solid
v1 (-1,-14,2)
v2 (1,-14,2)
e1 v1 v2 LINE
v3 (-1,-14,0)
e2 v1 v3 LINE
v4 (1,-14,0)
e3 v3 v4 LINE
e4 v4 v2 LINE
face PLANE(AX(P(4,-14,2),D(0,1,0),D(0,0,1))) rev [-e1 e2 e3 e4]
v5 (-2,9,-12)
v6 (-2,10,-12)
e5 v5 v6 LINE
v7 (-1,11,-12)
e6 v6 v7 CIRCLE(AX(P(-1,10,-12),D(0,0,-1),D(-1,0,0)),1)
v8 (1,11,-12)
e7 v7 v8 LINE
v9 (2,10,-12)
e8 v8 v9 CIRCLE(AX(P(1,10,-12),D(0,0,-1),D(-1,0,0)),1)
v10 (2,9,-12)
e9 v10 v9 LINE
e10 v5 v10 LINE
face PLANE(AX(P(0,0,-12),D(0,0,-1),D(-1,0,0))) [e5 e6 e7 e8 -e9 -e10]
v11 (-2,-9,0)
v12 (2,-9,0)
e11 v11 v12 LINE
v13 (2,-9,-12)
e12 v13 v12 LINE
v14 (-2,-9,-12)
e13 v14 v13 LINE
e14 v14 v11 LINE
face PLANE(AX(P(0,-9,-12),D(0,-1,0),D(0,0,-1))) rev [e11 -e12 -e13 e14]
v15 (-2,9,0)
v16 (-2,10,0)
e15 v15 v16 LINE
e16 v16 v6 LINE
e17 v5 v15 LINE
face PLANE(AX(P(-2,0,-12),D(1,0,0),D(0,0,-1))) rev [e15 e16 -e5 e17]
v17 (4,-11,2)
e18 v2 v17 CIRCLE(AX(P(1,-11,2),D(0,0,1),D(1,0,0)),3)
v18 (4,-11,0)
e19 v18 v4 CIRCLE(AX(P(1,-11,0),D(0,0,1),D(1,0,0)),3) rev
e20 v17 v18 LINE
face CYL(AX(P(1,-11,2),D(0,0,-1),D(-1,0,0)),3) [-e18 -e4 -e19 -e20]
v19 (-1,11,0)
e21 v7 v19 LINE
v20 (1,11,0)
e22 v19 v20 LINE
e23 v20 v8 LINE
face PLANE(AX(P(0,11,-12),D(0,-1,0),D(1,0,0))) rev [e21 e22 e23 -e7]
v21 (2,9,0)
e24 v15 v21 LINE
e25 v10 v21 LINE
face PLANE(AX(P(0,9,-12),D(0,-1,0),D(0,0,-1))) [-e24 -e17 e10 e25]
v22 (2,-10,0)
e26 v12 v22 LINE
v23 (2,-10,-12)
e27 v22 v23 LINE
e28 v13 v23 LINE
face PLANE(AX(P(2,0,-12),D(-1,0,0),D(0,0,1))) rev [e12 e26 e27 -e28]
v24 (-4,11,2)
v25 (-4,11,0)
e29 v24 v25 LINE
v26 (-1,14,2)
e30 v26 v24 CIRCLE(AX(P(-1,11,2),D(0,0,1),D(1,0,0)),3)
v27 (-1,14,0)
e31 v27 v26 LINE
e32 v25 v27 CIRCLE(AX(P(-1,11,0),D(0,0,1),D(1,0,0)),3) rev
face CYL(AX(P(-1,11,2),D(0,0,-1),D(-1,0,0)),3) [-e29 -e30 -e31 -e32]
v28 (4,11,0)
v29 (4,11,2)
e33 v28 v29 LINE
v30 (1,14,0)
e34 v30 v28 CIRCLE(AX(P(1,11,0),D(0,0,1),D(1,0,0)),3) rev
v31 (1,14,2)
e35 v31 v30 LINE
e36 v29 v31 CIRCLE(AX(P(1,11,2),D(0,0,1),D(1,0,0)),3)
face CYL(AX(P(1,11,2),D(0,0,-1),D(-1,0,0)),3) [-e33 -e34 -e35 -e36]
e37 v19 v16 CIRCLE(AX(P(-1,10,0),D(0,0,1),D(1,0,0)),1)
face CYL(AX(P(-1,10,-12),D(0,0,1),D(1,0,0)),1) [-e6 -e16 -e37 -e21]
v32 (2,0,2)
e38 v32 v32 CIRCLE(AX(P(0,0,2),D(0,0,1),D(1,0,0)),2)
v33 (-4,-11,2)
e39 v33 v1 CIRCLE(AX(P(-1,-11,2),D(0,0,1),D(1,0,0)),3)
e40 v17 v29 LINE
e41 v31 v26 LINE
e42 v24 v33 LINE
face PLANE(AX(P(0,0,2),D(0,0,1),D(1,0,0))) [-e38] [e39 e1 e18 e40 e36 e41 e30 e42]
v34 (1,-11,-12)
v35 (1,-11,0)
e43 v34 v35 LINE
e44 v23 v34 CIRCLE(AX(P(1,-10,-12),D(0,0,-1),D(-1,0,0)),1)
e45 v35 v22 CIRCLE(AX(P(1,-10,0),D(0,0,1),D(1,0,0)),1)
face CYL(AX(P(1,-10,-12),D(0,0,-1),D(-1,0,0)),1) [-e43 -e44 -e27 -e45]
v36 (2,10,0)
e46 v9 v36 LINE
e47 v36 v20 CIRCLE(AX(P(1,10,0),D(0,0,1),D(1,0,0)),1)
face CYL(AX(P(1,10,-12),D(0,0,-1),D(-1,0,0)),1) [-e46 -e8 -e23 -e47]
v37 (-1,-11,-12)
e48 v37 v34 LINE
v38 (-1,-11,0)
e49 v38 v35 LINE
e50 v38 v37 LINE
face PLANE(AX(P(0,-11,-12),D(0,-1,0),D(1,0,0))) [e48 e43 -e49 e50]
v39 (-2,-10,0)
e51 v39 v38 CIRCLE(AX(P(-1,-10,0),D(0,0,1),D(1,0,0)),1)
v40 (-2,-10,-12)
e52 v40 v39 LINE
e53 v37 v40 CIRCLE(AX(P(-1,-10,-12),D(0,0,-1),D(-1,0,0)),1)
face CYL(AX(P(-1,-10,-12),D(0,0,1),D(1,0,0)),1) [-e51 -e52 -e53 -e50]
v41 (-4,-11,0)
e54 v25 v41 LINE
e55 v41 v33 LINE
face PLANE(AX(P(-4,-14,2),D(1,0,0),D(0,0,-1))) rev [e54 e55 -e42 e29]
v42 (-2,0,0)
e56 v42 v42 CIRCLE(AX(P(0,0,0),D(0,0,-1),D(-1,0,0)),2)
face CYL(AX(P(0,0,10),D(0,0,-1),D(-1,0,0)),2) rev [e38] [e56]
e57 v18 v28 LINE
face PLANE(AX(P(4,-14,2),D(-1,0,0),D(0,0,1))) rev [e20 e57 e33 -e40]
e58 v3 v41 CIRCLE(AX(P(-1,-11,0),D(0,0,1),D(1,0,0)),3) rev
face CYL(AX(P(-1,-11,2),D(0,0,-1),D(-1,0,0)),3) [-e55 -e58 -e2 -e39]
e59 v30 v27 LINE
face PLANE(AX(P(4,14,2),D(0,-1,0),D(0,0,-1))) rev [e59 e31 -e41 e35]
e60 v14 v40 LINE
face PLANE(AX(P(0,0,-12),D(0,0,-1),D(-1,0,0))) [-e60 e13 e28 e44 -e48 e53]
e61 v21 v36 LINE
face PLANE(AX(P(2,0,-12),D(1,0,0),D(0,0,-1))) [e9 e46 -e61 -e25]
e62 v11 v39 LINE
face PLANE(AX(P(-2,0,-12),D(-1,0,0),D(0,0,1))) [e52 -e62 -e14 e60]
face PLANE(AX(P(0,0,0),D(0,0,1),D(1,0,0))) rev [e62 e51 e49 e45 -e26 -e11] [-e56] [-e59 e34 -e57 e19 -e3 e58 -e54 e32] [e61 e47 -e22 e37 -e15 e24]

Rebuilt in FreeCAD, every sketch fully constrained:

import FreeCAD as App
import Part
import Sketcher


def edges_at(feature, points):
    """Names of the edges that pass closest to the given points."""
    edges = feature.Shape.Edges
    near = lambda p: min(range(len(edges)), key=lambda i: edges[i].distToShape(Part.Vertex(*p))[0])
    return sorted({f"Edge{near(p) + 1}" for p in points})

doc = App.newDocument("Part")
body = doc.addObject("PartDesign::Body", "Body")

# Sketch on XY plane
sketch1 = body.newObject("Sketcher::SketchObject", "Sketch")
sketch1.AttachmentSupport = (doc.getObject("XY_Plane"), [""])
sketch1.MapMode = "FlatFace"
sketch1.addGeometry(Part.LineSegment(App.Vector(-4, 14, 0), App.Vector(-4, -14, 0)), False)
sketch1.addGeometry(Part.LineSegment(App.Vector(-4, -14, 0), App.Vector(4, -14, 0)), False)
sketch1.addGeometry(Part.LineSegment(App.Vector(4, -14, 0), App.Vector(4, 14, 0)), False)
sketch1.addGeometry(Part.LineSegment(App.Vector(4, 14, 0), App.Vector(-4, 14, 0)), False)
sketch1.addConstraint(Sketcher.Constraint("Coincident", 0, 2, 1, 1))
sketch1.addConstraint(Sketcher.Constraint("Coincident", 1, 2, 2, 1))
sketch1.addConstraint(Sketcher.Constraint("Coincident", 2, 2, 3, 1))
sketch1.addConstraint(Sketcher.Constraint("Coincident", 3, 2, 0, 1))
sketch1.addConstraint(Sketcher.Constraint("Vertical", 0))
sketch1.addConstraint(Sketcher.Constraint("Horizontal", 1))
sketch1.addConstraint(Sketcher.Constraint("Vertical", 2))
sketch1.addConstraint(Sketcher.Constraint("Horizontal", 3))
sketch1.addConstraint(Sketcher.Constraint("Symmetric", 0, 2, 2, 2, -1, 1))
sketch1.addConstraint(Sketcher.Constraint("DistanceX", 1, 1, 1, 2, 8.0))
sketch1.addConstraint(Sketcher.Constraint("DistanceY", 0, 2, 0, 1, 28.0))
pad1 = body.newObject("PartDesign::Pad", "Pad")
pad1.Profile = sketch1
pad1.Length = 2
doc.recompute()

fillet = body.newObject("PartDesign::Fillet", "Fillet")
fillet.Base = (pad1, edges_at(pad1, [
    (-4, 14, 1),
    (4, 14, 1),
    (4, -14, 1),
    (-4, -14, 1),
]))
fillet.Radius = 3

# Sketch on XY plane
sketch2 = body.newObject("Sketcher::SketchObject", "Sketch001")
sketch2.AttachmentSupport = (doc.getObject("XY_Plane"), [""])
sketch2.MapMode = "FlatFace"
sketch2.addGeometry(Part.LineSegment(App.Vector(2, 11, 0), App.Vector(2, 9, 0)), False)
sketch2.addGeometry(Part.LineSegment(App.Vector(2, 9, 0), App.Vector(-2, 9, 0)), False)
sketch2.addGeometry(Part.LineSegment(App.Vector(-2, 9, 0), App.Vector(-2, 11, 0)), False)
sketch2.addGeometry(Part.LineSegment(App.Vector(-2, 11, 0), App.Vector(2, 11, 0)), False)
sketch2.addGeometry(Part.LineSegment(App.Vector(2, -9, 0), App.Vector(2, -11, 0)), False)
sketch2.addGeometry(Part.LineSegment(App.Vector(2, -11, 0), App.Vector(-2, -11, 0)), False)
sketch2.addGeometry(Part.LineSegment(App.Vector(-2, -11, 0), App.Vector(-2, -9, 0)), False)
sketch2.addGeometry(Part.LineSegment(App.Vector(-2, -9, 0), App.Vector(2, -9, 0)), False)
sketch2.addConstraint(Sketcher.Constraint("Coincident", 0, 2, 1, 1))
sketch2.addConstraint(Sketcher.Constraint("Coincident", 1, 2, 2, 1))
sketch2.addConstraint(Sketcher.Constraint("Coincident", 2, 2, 3, 1))
sketch2.addConstraint(Sketcher.Constraint("Coincident", 3, 2, 0, 1))
sketch2.addConstraint(Sketcher.Constraint("Coincident", 4, 2, 5, 1))
sketch2.addConstraint(Sketcher.Constraint("Coincident", 5, 2, 6, 1))
sketch2.addConstraint(Sketcher.Constraint("Coincident", 6, 2, 7, 1))
sketch2.addConstraint(Sketcher.Constraint("Coincident", 7, 2, 4, 1))
sketch2.addConstraint(Sketcher.Constraint("Vertical", 0))
sketch2.addConstraint(Sketcher.Constraint("Horizontal", 1))
sketch2.addConstraint(Sketcher.Constraint("Vertical", 2))
sketch2.addConstraint(Sketcher.Constraint("Horizontal", 3))
sketch2.addConstraint(Sketcher.Constraint("Vertical", 4))
sketch2.addConstraint(Sketcher.Constraint("Horizontal", 5))
sketch2.addConstraint(Sketcher.Constraint("Vertical", 6))
sketch2.addConstraint(Sketcher.Constraint("Horizontal", 7))
sketch2.addConstraint(Sketcher.Constraint("Symmetric", 2, 2, 4, 2, -1, 1))
sketch2.addConstraint(Sketcher.Constraint("Symmetric", 0, 2, 6, 2, -1, 1))
sketch2.addConstraint(Sketcher.Constraint("Vertical", 3, 2, 4, 2))
sketch2.addConstraint(Sketcher.Constraint("DistanceX", 1, 2, 1, 1, 4.0))
sketch2.addConstraint(Sketcher.Constraint("DistanceY", 0, 2, 0, 1, 2.0))
sketch2.addConstraint(Sketcher.Constraint("DistanceY", -1, 1, 0, 2, 9.0))
pad2 = body.newObject("PartDesign::Pad", "Pad001")
pad2.Profile = sketch2
pad2.Length = 12
pad2.Reversed = True
doc.recompute()

fillet2 = body.newObject("PartDesign::Fillet", "Fillet001")
fillet2.Base = (pad2, edges_at(pad2, [
    (2, 11, -6),
    (-2, 11, -6),
    (-2, -11, -6),
    (2, -11, -6),
]))
fillet2.Radius = 1

# Sketch on XY plane
sketch3 = body.newObject("Sketcher::SketchObject", "Sketch002")
sketch3.AttachmentSupport = (doc.getObject("XY_Plane"), [""])
sketch3.MapMode = "FlatFace"
sketch3.addGeometry(Part.Circle(App.Vector(0, 0, 0), App.Vector(0, 0, 1), 2), False)
sketch3.addConstraint(Sketcher.Constraint("Coincident", 0, 3, -1, 1))
sketch3.addConstraint(Sketcher.Constraint("Diameter", 0, 4.0))
pocket1 = body.newObject("PartDesign::Pocket", "Pocket")
pocket1.Profile = sketch3
pocket1.Length = 10
pocket1.Reversed = True

doc.recompute()
